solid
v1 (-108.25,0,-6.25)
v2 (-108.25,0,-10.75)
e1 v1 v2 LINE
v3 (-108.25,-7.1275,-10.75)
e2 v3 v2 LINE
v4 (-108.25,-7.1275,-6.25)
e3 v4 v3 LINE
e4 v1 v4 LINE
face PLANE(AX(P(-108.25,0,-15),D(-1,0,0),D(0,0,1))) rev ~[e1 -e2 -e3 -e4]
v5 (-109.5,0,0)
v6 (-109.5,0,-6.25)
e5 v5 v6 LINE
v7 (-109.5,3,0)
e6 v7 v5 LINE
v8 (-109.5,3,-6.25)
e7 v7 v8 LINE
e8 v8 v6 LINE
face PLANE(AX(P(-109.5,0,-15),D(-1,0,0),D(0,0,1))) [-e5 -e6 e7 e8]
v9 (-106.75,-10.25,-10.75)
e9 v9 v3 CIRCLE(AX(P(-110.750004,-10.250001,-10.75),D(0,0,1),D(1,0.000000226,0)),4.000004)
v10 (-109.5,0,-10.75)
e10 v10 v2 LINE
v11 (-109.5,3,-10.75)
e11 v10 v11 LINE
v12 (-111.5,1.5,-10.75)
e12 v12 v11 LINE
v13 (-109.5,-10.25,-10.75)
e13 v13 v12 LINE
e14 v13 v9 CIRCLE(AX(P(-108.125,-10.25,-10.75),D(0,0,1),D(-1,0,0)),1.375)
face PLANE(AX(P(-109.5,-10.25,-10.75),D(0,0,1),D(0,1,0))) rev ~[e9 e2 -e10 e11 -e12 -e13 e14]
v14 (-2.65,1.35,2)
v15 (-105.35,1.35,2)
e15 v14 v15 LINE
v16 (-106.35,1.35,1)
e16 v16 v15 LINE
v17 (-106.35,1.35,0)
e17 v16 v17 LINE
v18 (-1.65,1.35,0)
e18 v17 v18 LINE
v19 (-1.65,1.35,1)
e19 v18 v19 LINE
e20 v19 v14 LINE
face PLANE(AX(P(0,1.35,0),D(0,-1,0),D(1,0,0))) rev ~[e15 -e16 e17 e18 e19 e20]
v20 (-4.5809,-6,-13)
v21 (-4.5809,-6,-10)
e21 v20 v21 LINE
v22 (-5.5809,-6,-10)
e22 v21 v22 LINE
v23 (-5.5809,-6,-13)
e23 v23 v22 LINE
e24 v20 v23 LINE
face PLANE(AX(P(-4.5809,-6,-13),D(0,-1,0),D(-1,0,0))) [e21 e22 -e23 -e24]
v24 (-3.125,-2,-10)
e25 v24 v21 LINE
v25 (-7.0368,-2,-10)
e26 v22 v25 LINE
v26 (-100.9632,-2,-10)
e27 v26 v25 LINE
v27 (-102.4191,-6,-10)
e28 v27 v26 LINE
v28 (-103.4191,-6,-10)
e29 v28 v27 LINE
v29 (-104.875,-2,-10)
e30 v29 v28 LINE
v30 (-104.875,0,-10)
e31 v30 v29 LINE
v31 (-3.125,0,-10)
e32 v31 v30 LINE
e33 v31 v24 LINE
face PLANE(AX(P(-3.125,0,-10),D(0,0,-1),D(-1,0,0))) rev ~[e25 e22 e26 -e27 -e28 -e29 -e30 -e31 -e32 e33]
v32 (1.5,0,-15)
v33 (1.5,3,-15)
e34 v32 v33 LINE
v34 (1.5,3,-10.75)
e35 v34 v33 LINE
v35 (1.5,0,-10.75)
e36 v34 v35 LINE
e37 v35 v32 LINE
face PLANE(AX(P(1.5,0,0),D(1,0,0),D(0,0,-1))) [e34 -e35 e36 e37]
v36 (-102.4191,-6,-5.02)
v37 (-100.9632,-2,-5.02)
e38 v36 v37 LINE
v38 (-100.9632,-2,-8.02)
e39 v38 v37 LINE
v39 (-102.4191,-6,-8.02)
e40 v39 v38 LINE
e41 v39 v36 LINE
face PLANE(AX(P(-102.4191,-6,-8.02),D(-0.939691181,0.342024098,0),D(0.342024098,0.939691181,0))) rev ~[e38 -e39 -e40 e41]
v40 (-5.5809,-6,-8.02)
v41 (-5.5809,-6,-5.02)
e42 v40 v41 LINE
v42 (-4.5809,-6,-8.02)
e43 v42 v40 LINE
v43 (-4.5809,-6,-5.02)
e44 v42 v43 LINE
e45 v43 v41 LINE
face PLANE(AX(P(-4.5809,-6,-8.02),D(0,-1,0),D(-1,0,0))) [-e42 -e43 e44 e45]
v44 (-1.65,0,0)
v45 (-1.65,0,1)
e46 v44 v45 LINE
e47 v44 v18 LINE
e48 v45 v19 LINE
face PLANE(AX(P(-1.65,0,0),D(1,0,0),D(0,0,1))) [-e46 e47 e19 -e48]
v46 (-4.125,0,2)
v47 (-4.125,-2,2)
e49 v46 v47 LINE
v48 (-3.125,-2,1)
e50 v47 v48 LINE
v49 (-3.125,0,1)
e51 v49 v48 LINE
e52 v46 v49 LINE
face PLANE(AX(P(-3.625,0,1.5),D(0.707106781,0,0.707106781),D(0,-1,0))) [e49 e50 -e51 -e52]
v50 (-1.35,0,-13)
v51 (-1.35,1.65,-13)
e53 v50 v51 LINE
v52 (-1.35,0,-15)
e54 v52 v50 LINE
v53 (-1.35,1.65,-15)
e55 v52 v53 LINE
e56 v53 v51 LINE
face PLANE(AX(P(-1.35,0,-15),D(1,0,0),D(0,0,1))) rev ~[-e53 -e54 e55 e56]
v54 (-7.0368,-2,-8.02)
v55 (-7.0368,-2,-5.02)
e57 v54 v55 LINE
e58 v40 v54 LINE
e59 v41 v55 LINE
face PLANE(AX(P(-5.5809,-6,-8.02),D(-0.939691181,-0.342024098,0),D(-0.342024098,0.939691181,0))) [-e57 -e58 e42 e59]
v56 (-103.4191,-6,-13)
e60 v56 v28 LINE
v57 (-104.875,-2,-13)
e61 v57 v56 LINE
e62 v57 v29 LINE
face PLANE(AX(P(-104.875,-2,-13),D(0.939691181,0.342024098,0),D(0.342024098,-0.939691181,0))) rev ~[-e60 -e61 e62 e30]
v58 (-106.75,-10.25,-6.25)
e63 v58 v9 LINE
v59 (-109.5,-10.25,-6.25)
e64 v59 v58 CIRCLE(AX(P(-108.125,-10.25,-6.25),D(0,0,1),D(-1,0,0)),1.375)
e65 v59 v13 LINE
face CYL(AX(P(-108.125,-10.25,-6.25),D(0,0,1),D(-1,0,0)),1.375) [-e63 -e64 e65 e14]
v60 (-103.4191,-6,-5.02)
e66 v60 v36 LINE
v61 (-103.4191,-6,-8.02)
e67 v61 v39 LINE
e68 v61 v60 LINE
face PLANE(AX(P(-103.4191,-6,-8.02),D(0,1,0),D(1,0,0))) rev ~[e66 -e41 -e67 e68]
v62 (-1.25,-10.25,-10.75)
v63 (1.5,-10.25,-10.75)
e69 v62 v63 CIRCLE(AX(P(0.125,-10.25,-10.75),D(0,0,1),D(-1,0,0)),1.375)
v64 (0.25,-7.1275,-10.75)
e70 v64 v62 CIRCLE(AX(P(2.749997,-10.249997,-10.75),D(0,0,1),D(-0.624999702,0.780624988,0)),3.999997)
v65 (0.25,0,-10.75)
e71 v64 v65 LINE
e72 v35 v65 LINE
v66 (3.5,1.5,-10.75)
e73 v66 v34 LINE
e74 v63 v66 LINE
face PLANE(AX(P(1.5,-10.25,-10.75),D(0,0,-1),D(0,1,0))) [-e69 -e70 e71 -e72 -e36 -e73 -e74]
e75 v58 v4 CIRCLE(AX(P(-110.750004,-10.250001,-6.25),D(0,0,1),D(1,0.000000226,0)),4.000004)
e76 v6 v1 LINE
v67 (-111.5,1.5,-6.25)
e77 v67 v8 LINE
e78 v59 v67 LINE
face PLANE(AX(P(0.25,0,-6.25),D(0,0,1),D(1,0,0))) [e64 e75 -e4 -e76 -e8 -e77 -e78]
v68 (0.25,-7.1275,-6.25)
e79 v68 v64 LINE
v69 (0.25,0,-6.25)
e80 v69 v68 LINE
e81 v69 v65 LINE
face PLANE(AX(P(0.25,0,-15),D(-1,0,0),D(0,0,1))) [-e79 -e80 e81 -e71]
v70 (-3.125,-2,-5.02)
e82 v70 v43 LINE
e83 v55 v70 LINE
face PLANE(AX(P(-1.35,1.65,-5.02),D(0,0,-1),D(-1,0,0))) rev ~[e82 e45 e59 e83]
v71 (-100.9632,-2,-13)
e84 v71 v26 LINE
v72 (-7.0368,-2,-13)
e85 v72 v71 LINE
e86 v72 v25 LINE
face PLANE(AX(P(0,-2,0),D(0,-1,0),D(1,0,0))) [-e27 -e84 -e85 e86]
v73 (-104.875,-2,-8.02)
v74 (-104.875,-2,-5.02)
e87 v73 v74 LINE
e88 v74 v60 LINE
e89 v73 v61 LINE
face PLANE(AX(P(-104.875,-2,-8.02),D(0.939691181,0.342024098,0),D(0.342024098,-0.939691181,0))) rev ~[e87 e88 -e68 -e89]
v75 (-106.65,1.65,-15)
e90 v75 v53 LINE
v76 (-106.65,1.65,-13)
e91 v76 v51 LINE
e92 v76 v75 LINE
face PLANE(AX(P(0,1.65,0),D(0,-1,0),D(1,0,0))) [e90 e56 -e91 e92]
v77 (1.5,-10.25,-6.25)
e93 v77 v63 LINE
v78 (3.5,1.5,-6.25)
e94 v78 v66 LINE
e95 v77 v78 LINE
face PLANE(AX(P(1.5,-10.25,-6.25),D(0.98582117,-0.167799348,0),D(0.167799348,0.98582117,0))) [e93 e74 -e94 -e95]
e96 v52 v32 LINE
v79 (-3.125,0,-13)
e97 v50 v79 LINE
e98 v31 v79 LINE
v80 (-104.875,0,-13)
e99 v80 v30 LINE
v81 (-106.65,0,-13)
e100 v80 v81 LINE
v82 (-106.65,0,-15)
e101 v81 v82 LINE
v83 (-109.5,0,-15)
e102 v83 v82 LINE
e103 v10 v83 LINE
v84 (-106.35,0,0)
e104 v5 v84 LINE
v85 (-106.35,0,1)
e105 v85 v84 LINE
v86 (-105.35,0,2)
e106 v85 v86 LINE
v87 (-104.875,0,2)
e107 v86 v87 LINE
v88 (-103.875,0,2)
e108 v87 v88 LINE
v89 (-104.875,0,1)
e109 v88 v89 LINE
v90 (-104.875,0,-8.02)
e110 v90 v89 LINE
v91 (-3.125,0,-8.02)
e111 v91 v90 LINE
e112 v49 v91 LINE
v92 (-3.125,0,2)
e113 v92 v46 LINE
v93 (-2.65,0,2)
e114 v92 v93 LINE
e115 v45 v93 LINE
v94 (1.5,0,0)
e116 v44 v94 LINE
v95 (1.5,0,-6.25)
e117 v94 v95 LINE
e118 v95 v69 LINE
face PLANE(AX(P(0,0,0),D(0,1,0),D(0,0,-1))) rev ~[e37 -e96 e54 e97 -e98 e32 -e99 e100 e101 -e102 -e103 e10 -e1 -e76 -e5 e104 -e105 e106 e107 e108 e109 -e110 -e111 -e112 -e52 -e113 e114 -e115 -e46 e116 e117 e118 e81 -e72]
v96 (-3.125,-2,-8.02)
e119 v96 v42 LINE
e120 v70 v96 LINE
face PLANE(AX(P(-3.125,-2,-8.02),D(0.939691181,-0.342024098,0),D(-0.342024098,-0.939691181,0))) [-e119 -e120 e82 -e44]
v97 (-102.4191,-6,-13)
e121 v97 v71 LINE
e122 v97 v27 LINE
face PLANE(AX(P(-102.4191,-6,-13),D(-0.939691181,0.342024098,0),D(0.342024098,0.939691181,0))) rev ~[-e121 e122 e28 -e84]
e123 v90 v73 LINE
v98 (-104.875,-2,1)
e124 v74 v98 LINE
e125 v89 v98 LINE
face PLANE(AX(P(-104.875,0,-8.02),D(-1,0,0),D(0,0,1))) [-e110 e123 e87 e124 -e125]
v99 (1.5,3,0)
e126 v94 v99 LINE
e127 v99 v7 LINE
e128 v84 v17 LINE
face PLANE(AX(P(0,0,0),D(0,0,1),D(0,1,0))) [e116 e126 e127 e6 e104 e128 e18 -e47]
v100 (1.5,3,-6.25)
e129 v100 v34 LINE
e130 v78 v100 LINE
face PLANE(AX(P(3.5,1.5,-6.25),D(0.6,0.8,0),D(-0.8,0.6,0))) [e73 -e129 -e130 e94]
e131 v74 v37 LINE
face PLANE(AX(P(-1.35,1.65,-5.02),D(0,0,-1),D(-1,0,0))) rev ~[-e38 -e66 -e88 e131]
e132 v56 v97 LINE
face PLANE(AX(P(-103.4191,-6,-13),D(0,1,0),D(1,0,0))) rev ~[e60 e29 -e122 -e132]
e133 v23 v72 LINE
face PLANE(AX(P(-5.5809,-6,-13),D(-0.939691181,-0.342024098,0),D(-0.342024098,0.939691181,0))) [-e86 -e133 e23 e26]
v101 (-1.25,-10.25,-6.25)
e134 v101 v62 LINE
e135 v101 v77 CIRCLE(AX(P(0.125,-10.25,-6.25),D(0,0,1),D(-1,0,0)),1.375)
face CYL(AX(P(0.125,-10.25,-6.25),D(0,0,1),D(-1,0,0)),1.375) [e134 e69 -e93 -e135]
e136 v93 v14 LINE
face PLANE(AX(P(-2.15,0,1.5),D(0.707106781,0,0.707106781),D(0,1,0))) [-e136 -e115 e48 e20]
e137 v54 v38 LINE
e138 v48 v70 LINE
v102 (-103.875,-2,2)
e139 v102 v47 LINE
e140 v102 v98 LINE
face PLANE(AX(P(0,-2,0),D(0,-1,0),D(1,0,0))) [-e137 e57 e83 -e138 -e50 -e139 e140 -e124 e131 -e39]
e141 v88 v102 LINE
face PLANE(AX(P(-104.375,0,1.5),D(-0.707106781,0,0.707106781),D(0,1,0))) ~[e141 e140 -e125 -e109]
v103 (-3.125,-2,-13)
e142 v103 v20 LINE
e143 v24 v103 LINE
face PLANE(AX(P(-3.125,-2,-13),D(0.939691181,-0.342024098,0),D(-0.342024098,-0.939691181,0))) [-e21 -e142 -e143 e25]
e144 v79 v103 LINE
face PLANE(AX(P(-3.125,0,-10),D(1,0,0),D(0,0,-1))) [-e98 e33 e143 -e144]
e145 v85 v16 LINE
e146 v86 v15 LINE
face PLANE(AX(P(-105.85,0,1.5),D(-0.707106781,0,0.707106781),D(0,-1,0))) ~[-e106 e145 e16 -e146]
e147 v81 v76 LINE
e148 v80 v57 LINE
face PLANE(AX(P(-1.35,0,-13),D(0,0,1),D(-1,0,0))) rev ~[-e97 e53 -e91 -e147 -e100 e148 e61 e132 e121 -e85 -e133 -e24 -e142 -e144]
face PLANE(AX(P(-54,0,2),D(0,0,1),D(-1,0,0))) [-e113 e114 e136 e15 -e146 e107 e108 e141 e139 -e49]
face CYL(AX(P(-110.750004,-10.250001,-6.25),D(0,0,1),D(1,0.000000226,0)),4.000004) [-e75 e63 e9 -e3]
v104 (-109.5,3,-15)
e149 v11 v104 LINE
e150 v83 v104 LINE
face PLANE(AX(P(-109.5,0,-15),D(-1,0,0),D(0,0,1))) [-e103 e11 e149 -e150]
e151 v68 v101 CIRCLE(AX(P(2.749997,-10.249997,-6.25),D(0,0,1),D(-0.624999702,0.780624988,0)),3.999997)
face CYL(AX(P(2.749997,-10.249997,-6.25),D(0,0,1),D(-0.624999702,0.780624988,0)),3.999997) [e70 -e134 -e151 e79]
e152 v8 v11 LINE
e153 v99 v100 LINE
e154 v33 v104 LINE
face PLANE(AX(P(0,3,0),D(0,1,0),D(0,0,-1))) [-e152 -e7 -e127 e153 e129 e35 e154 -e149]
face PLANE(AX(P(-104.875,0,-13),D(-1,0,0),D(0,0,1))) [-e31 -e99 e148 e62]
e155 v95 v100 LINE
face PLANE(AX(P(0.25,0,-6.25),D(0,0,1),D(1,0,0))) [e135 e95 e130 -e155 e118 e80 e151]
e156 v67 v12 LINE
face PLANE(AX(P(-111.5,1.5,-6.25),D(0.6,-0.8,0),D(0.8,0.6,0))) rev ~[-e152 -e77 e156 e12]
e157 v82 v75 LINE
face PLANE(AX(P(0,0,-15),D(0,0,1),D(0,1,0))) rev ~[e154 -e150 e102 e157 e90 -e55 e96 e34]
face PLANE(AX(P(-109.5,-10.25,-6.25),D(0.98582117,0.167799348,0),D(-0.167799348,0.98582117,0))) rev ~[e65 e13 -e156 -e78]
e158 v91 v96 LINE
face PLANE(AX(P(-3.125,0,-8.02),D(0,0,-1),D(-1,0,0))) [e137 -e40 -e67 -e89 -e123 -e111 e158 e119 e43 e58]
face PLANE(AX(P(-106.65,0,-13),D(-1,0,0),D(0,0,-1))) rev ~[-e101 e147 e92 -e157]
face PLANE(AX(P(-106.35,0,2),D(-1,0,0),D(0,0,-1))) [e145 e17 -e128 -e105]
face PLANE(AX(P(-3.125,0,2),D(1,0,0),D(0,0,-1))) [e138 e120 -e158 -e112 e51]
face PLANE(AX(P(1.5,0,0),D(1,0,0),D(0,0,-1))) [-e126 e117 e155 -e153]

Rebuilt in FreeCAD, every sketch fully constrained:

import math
import FreeCAD as App
import Part
import Sketcher
Q = App.Units.Quantity


def edges_at(feature, points):
    """Names of the edges that pass closest to the given points."""
    edges = feature.Shape.Edges
    near = lambda p: min(range(len(edges)), key=lambda i: edges[i].distToShape(Part.Vertex(*p))[0])
    return sorted({f"Edge{near(p) + 1}" for p in points})

doc = App.newDocument("Part")
params = doc.addObject("Spreadsheet::Sheet", "Params")
for row, (alias, value) in enumerate([
    ("sketch1_width", "108 mm"),
    ("sketch1_height", "15 mm"),
    ("pad1_length", "3 mm"),
    ("sketch2_height", "2 mm"),
    ("sketch2_width", "104.7 mm"),
    ("pad2_length", "1.35 mm"),
    ("sketch3_height", "2 mm"),
    ("sketch3_width", "105.3 mm"),
    ("pocket1_length", "1.65 mm"),
    ("sketch4_width", "101.75 mm"),
    ("sketch4_height", "3 mm"),
    ("pad3_length", "2 mm"),
    ("sketch5_width", "101.75 mm"),
    ("sketch5_height", "10.02 mm"),
    ("pad4_length", "2 mm"),
    ("sketch6_width", "3 mm"),
    ("sketch6_height", "15 mm"),
    ("pad5_length", "1.5 mm"),
    ("sketch7_width", "3 mm"),
    ("sketch7_height", "15 mm"),
    ("pad6_length", "1.5 mm"),
    ("sketch8_height", "4.5 mm"),
    ("sketch8_width", "10.25 mm"),
    ("pad7_length", "1.25 mm"),
    ("sketch9_height", "4.5 mm"),
    ("sketch9_width", "10.25 mm"),
    ("pad8_length", "1.25 mm"),
    ("sketch10_radius", "4 mm"),
    ("pad9_length", "4.5 mm"),
    ("sketch11_length", "2.5 mm"),
    ("sketch11_height", "13.25 mm"),
    ("pad10_length", "4.5 mm"),
    ("sketch12_width", "1 mm"),
    ("pad11_length", "3 mm"),
    ("sketch13_width", "1 mm"),
    ("pad12_length", "3 mm"),
    ("chamfer_size", "1 mm"),
], start=1):
    params.set(f"A{row}", alias)
    params.set(f"B{row}", "=" + value)
    params.setAlias(f"B{row}", alias)

body = doc.addObject("PartDesign::Body", "Body")

# Sketch on XZ plane
sketch1 = body.newObject("Sketcher::SketchObject", "Sketch")
sketch1.AttachmentSupport = (doc.getObject("XZ_Plane"), [""])
sketch1.MapMode = "FlatFace"
sketch1.addGeometry([
    Part.LineSegment(App.Vector(-108, 0, 0), App.Vector(0, 0, 0)),
    Part.LineSegment(App.Vector(0, 0, 0), App.Vector(0, -15, 0)),
    Part.LineSegment(App.Vector(0, -15, 0), App.Vector(-108, -15, 0)),
    Part.LineSegment(App.Vector(-108, -15, 0), App.Vector(-108, 0, 0)),
], False)
sketch1.addConstraint([
    Sketcher.Constraint("Coincident", 0, 2, 1, 1),
    Sketcher.Constraint("Coincident", 1, 2, 2, 1),
    Sketcher.Constraint("Coincident", 2, 2, 3, 1),
    Sketcher.Constraint("Coincident", 3, 2, 0, 1),
    Sketcher.Constraint("Horizontal", 0),
    Sketcher.Constraint("Vertical", 1),
    Sketcher.Constraint("Horizontal", 2),
    Sketcher.Constraint("Vertical", 3),
    Sketcher.Constraint("Coincident", 0, 2, -1, 1),
    Sketcher.Constraint("DistanceX", 0, 1, 0, 2, Q("108 mm")),
    Sketcher.Constraint("DistanceY", 1, 2, 1, 1, Q("15 mm")),
])
sketch1.setExpression("Constraints[9]", "Params.sketch1_width")
sketch1.setExpression("Constraints[10]", "Params.sketch1_height")
pad1 = body.newObject("PartDesign::Pad", "Pad")
pad1.Profile = sketch1
pad1.setExpression("Length", "Params.pad1_length")
pad1.Reversed = True

# Sketch on XZ plane
sketch2 = body.newObject("Sketcher::SketchObject", "Sketch001")
sketch2.AttachmentSupport = (doc.getObject("XZ_Plane"), [""])
sketch2.MapMode = "FlatFace"
sketch2.addGeometry([
    Part.LineSegment(App.Vector(-106.35, 2, 0), App.Vector(-106.35, 0, 0)),
    Part.LineSegment(App.Vector(-106.35, 0, 0), App.Vector(-1.65, 0, 0)),
    Part.LineSegment(App.Vector(-1.65, 0, 0), App.Vector(-1.65, 2, 0)),
    Part.LineSegment(App.Vector(-1.65, 2, 0), App.Vector(-106.35, 2, 0)),
], False)
sketch2.addConstraint([
    Sketcher.Constraint("Coincident", 0, 2, 1, 1),
    Sketcher.Constraint("Coincident", 1, 2, 2, 1),
    Sketcher.Constraint("Coincident", 2, 2, 3, 1),
    Sketcher.Constraint("Coincident", 3, 2, 0, 1),
    Sketcher.Constraint("Vertical", 0),
    Sketcher.Constraint("Horizontal", 1),
    Sketcher.Constraint("Vertical", 2),
    Sketcher.Constraint("Horizontal", 3),
    Sketcher.Constraint("PointOnObject", 0, 2, -1),
    Sketcher.Constraint("DistanceY", 0, 2, 0, 1, Q("2 mm")),
    Sketcher.Constraint("DistanceX", 1, 2, -1, 1, Q("1.65 mm")),
    Sketcher.Constraint("DistanceX", 1, 1, 1, 2, Q("104.7 mm")),
])
sketch2.setExpression("Constraints[9]", "Params.sketch2_height")
sketch2.setExpression("Constraints[11]", "Params.sketch2_width")
pad2 = body.newObject("PartDesign::Pad", "Pad001")
pad2.Profile = sketch2
pad2.setExpression("Length", "Params.pad2_length")
pad2.Reversed = True

# Sketch on XZ plane
sketch3 = body.newObject("Sketcher::SketchObject", "Sketch002")
sketch3.AttachmentSupport = (doc.getObject("XZ_Plane"), [""])
sketch3.MapMode = "FlatFace"
sketch3.addGeometry([
    Part.LineSegment(App.Vector(-1.35, -15, 0), App.Vector(-1.35, -13, 0)),
    Part.LineSegment(App.Vector(-1.35, -13, 0), App.Vector(-106.65, -13, 0)),
    Part.LineSegment(App.Vector(-106.65, -13, 0), App.Vector(-106.65, -15, 0)),
    Part.LineSegment(App.Vector(-106.65, -15, 0), App.Vector(-1.35, -15, 0)),
], False)
sketch3.addConstraint([
    Sketcher.Constraint("Coincident", 0, 2, 1, 1),
    Sketcher.Constraint("Coincident", 1, 2, 2, 1),
    Sketcher.Constraint("Coincident", 2, 2, 3, 1),
    Sketcher.Constraint("Coincident", 3, 2, 0, 1),
    Sketcher.Constraint("Vertical", 0),
    Sketcher.Constraint("Horizontal", 1),
    Sketcher.Constraint("Vertical", 2),
    Sketcher.Constraint("Horizontal", 3),
    Sketcher.Constraint("DistanceY", 0, 1, 0, 2, Q("2 mm")),
    Sketcher.Constraint("DistanceX", 0, 2, -1, 1, Q("1.35 mm")),
    Sketcher.Constraint("DistanceX", 1, 2, 1, 1, Q("105.3 mm")),
    Sketcher.Constraint("DistanceY", 0, 2, -1, 1, Q("13 mm")),
])
sketch3.setExpression("Constraints[8]", "Params.sketch3_height")
sketch3.setExpression("Constraints[10]", "Params.sketch3_width")
pocket1 = body.newObject("PartDesign::Pocket", "Pocket")
pocket1.Profile = sketch3
pocket1.setExpression("Length", "Params.pocket1_length")

# Sketch on XZ plane
sketch4 = body.newObject("Sketcher::SketchObject", "Sketch003")
sketch4.AttachmentSupport = (doc.getObject("XZ_Plane"), [""])
sketch4.MapMode = "FlatFace"
sketch4.addGeometry([
    Part.LineSegment(App.Vector(-3.125, -13, 0), App.Vector(-3.125, -10, 0)),
    Part.LineSegment(App.Vector(-3.125, -10, 0), App.Vector(-104.875, -10, 0)),
    Part.LineSegment(App.Vector(-104.875, -10, 0), App.Vector(-104.875, -13, 0)),
    Part.LineSegment(App.Vector(-104.875, -13, 0), App.Vector(-3.125, -13, 0)),
], False)
sketch4.addConstraint([
    Sketcher.Constraint("Coincident", 0, 2, 1, 1),
    Sketcher.Constraint("Coincident", 1, 2, 2, 1),
    Sketcher.Constraint("Coincident", 2, 2, 3, 1),
    Sketcher.Constraint("Coincident", 3, 2, 0, 1),
    Sketcher.Constraint("Vertical", 0),
    Sketcher.Constraint("Horizontal", 1),
    Sketcher.Constraint("Vertical", 2),
    Sketcher.Constraint("Horizontal", 3),
    Sketcher.Constraint("DistanceX", 1, 2, 1, 1, Q("101.75 mm")),
    Sketcher.Constraint("DistanceY", 0, 1, 0, 2, Q("3 mm")),
    Sketcher.Constraint("DistanceY", 0, 2, -1, 1, Q("10 mm")),
    Sketcher.Constraint("DistanceX", 0, 2, -1, 1, Q("3.125 mm")),
])
sketch4.setExpression("Constraints[8]", "Params.sketch4_width")
sketch4.setExpression("Constraints[9]", "Params.sketch4_height")
pad3 = body.newObject("PartDesign::Pad", "Pad002")
pad3.Profile = sketch4
pad3.setExpression("Length", "Params.pad3_length")

# Sketch on XZ plane
sketch5 = body.newObject("Sketcher::SketchObject", "Sketch004")
sketch5.AttachmentSupport = (doc.getObject("XZ_Plane"), [""])
sketch5.MapMode = "FlatFace"
sketch5.addGeometry([
    Part.LineSegment(App.Vector(-104.875, -8.02, 0), App.Vector(-3.125, -8.02, 0)),
    Part.LineSegment(App.Vector(-3.125, -8.02, 0), App.Vector(-3.125, 2, 0)),
    Part.LineSegment(App.Vector(-3.125, 2, 0), App.Vector(-104.875, 2, 0)),
    Part.LineSegment(App.Vector(-104.875, 2, 0), App.Vector(-104.875, -8.02, 0)),
], False)
sketch5.addConstraint([
    Sketcher.Constraint("Coincident", 0, 2, 1, 1),
    Sketcher.Constraint("Coincident", 1, 2, 2, 1),
    Sketcher.Constraint("Coincident", 2, 2, 3, 1),
    Sketcher.Constraint("Coincident", 3, 2, 0, 1),
    Sketcher.Constraint("Horizontal", 0),
    Sketcher.Constraint("Vertical", 1),
    Sketcher.Constraint("Horizontal", 2),
    Sketcher.Constraint("Vertical", 3),
    Sketcher.Constraint("DistanceY", -1, 1, 1, 2, Q("2 mm")),
    Sketcher.Constraint("DistanceX", 0, 1, 0, 2, Q("101.75 mm")),
    Sketcher.Constraint("DistanceY", 1, 1, 1, 2, Q("10.02 mm")),
    Sketcher.Constraint("DistanceX", 0, 2, -1, 1, Q("3.125 mm")),
])
sketch5.setExpression("Constraints[9]", "Params.sketch5_width")
sketch5.setExpression("Constraints[10]", "Params.sketch5_height")
pad4 = body.newObject("PartDesign::Pad", "Pad003")
pad4.Profile = sketch5
pad4.setExpression("Length", "Params.pad4_length")

# Sketch on YZ plane
sketch6 = body.newObject("Sketcher::SketchObject", "Sketch005")
sketch6.AttachmentSupport = (doc.getObject("YZ_Plane"), [""])
sketch6.MapMode = "FlatFace"
sketch6.AttachmentOffset = App.Placement(App.Vector(0, 0, -108), App.Rotation())
sketch6.addGeometry([
    Part.LineSegment(App.Vector(0, 0, 0), App.Vector(3, 0, 0)),
    Part.LineSegment(App.Vector(3, 0, 0), App.Vector(3, -15, 0)),
    Part.LineSegment(App.Vector(3, -15, 0), App.Vector(0, -15, 0)),
    Part.LineSegment(App.Vector(0, -15, 0), App.Vector(0, 0, 0)),
], False)
sketch6.addConstraint([
    Sketcher.Constraint("Coincident", 0, 2, 1, 1),
    Sketcher.Constraint("Coincident", 1, 2, 2, 1),
    Sketcher.Constraint("Coincident", 2, 2, 3, 1),
    Sketcher.Constraint("Coincident", 3, 2, 0, 1),
    Sketcher.Constraint("Horizontal", 0),
    Sketcher.Constraint("Vertical", 1),
    Sketcher.Constraint("Horizontal", 2),
    Sketcher.Constraint("Vertical", 3),
    Sketcher.Constraint("Coincident", 3, 2, -1, 1),
    Sketcher.Constraint("DistanceX", 0, 1, 0, 2, Q("3 mm")),
    Sketcher.Constraint("DistanceY", 1, 2, 1, 1, Q("15 mm")),
])
sketch6.setExpression("Constraints[9]", "Params.sketch6_width")
sketch6.setExpression("Constraints[10]", "Params.sketch6_height")
pad5 = body.newObject("PartDesign::Pad", "Pad004")
pad5.Profile = sketch6
pad5.setExpression("Length", "Params.pad5_length")
pad5.Reversed = True

# Sketch on YZ plane
sketch7 = body.newObject("Sketcher::SketchObject", "Sketch006")
sketch7.AttachmentSupport = (doc.getObject("YZ_Plane"), [""])
sketch7.MapMode = "FlatFace"
sketch7.addGeometry([
    Part.LineSegment(App.Vector(3, 0, 0), App.Vector(0, 0, 0)),
    Part.LineSegment(App.Vector(0, 0, 0), App.Vector(0, -15, 0)),
    Part.LineSegment(App.Vector(0, -15, 0), App.Vector(3, -15, 0)),
    Part.LineSegment(App.Vector(3, -15, 0), App.Vector(3, 0, 0)),
], False)
sketch7.addConstraint([
    Sketcher.Constraint("Coincident", 0, 2, 1, 1),
    Sketcher.Constraint("Coincident", 1, 2, 2, 1),
    Sketcher.Constraint("Coincident", 2, 2, 3, 1),
    Sketcher.Constraint("Coincident", 3, 2, 0, 1),
    Sketcher.Constraint("Horizontal", 0),
    Sketcher.Constraint("Vertical", 1),
    Sketcher.Constraint("Horizontal", 2),
    Sketcher.Constraint("Vertical", 3),
    Sketcher.Constraint("Coincident", 0, 2, -1, 1),
    Sketcher.Constraint("DistanceX", 0, 2, 0, 1, Q("3 mm")),
    Sketcher.Constraint("DistanceY", 1, 2, 1, 1, Q("15 mm")),
])
sketch7.setExpression("Constraints[9]", "Params.sketch7_width")
sketch7.setExpression("Constraints[10]", "Params.sketch7_height")
pad6 = body.newObject("PartDesign::Pad", "Pad005")
pad6.Profile = sketch7
pad6.setExpression("Length", "Params.pad6_length")

# Sketch on YZ plane
sketch8 = body.newObject("Sketcher::SketchObject", "Sketch007")
sketch8.AttachmentSupport = (doc.getObject("YZ_Plane"), [""])
sketch8.MapMode = "FlatFace"
sketch8.AttachmentOffset = App.Placement(App.Vector(0, 0, -109.5), App.Rotation())
sketch8.addGeometry([
    Part.LineSegment(App.Vector(-10.25, -6.25, 0), App.Vector(0, -6.25, 0)),
    Part.LineSegment(App.Vector(0, -6.25, 0), App.Vector(0, -10.75, 0)),
    Part.LineSegment(App.Vector(0, -10.75, 0), App.Vector(-10.25, -10.75, 0)),
    Part.LineSegment(App.Vector(-10.25, -10.75, 0), App.Vector(-10.25, -6.25, 0)),
], False)
sketch8.addConstraint([
    Sketcher.Constraint("Coincident", 0, 2, 1, 1),
    Sketcher.Constraint("Coincident", 1, 2, 2, 1),
    Sketcher.Constraint("Coincident", 2, 2, 3, 1),
    Sketcher.Constraint("Coincident", 3, 2, 0, 1),
    Sketcher.Constraint("Horizontal", 0),
    Sketcher.Constraint("Vertical", 1),
    Sketcher.Constraint("Horizontal", 2),
    Sketcher.Constraint("Vertical", 3),
    Sketcher.Constraint("PointOnObject", 0, 2, -2),
    Sketcher.Constraint("DistanceY", 1, 2, 1, 1, Q("4.5 mm")),
    Sketcher.Constraint("DistanceX", 0, 1, 0, 2, Q("10.25 mm")),
    Sketcher.Constraint("DistanceY", 0, 2, -1, 1, Q("6.25 mm")),
])
sketch8.setExpression("Constraints[9]", "Params.sketch8_height")
sketch8.setExpression("Constraints[10]", "Params.sketch8_width")
pad7 = body.newObject("PartDesign::Pad", "Pad006")
pad7.Profile = sketch8
pad7.setExpression("Length", "Params.pad7_length")

# Sketch on YZ plane
sketch9 = body.newObject("Sketcher::SketchObject", "Sketch008")
sketch9.AttachmentSupport = (doc.getObject("YZ_Plane"), [""])
sketch9.MapMode = "FlatFace"
sketch9.AttachmentOffset = App.Placement(App.Vector(0, 0, 1.5), App.Rotation())
sketch9.addGeometry([
    Part.LineSegment(App.Vector(-10.25, -6.25, 0), App.Vector(0, -6.25, 0)),
    Part.LineSegment(App.Vector(0, -6.25, 0), App.Vector(0, -10.75, 0)),
    Part.LineSegment(App.Vector(0, -10.75, 0), App.Vector(-10.25, -10.75, 0)),
    Part.LineSegment(App.Vector(-10.25, -10.75, 0), App.Vector(-10.25, -6.25, 0)),
], False)
sketch9.addConstraint([
    Sketcher.Constraint("Coincident", 0, 2, 1, 1),
    Sketcher.Constraint("Coincident", 1, 2, 2, 1),
    Sketcher.Constraint("Coincident", 2, 2, 3, 1),
    Sketcher.Constraint("Coincident", 3, 2, 0, 1),
    Sketcher.Constraint("Horizontal", 0),
    Sketcher.Constraint("Vertical", 1),
    Sketcher.Constraint("Horizontal", 2),
    Sketcher.Constraint("Vertical", 3),
    Sketcher.Constraint("PointOnObject", 0, 2, -2),
    Sketcher.Constraint("DistanceY", 1, 2, 1, 1, Q("4.5 mm")),
    Sketcher.Constraint("DistanceX", 0, 1, 0, 2, Q("10.25 mm")),
    Sketcher.Constraint("DistanceY", 0, 2, -1, 1, Q("6.25 mm")),
])
sketch9.setExpression("Constraints[9]", "Params.sketch9_height")
sketch9.setExpression("Constraints[10]", "Params.sketch9_width")
pad8 = body.newObject("PartDesign::Pad", "Pad007")
pad8.Profile = sketch9
pad8.setExpression("Length", "Params.pad8_length")
pad8.Reversed = True

# Sketch on XY plane
sketch10 = body.newObject("Sketcher::SketchObject", "Sketch009")
sketch10.AttachmentSupport = (doc.getObject("XY_Plane"), [""])
sketch10.MapMode = "FlatFace"
sketch10.AttachmentOffset = App.Placement(App.Vector(0, 0, -6.25), App.Rotation())
sketch10.addGeometry([
    Part.LineSegment(App.Vector(-109.5, -7.1275, 0), App.Vector(-109.5, -10.25, 0)),  # 0
    Part.ArcOfCircle(Part.Circle(App.Vector(-108.125, -10.25, 0), App.Vector(0, 0, 1), 1.375), math.radians(180), math.radians(360)),  # 1
    Part.ArcOfCircle(Part.Circle(App.Vector(-110.75, -10.25, 0), App.Vector(0, 0, 1), 4), math.radians(0), math.radians(51.317822)),  # 2
    Part.LineSegment(App.Vector(-108.25, -7.1275, 0), App.Vector(-109.5, -7.1275, 0)),  # 3
    Part.ArcOfCircle(Part.Circle(App.Vector(0.125, -10.25, 0), App.Vector(0, 0, 1), 1.375), math.radians(180), math.radians(360)),  # 4
    Part.LineSegment(App.Vector(1.5, -10.25, 0), App.Vector(1.5, -7.1275, 0)),  # 5
    Part.LineSegment(App.Vector(1.5, -7.1275, 0), App.Vector(0.25, -7.1275, 0)),  # 6
    Part.ArcOfCircle(Part.Circle(App.Vector(2.75, -10.25, 0), App.Vector(0, 0, 1), 4.000001), math.radians(128.682178), math.radians(180)),  # 7
], False)
sketch10.addConstraint([
    Sketcher.Constraint("Tangent", 0, 2, 1, 1),
    Sketcher.Constraint("Tangent", 1, 2, 2, 1),
    Sketcher.Constraint("Coincident", 2, 2, 3, 1),
    Sketcher.Constraint("Coincident", 3, 2, 0, 1),
    Sketcher.Constraint("Tangent", 4, 2, 5, 1),
    Sketcher.Constraint("Coincident", 5, 2, 6, 1),
    Sketcher.Constraint("Coincident", 6, 2, 7, 1),
    Sketcher.Constraint("Tangent", 7, 2, 4, 1),
    Sketcher.Constraint("Vertical", 0),
    Sketcher.Constraint("Horizontal", 3),
    Sketcher.Constraint("Vertical", 5),
    Sketcher.Constraint("Horizontal", 6),
    Sketcher.Constraint("Equal", 1, 4),
    Sketcher.Constraint("Equal", 2, 7),
    Sketcher.Constraint("Horizontal", 1, 3, 2, 3),
    Sketcher.Constraint("Horizontal", 2, 3, 4, 3),
    Sketcher.Constraint("Horizontal", 4, 3, 7, 3),
    Sketcher.Constraint("Horizontal", 3, 2, 5, 2),
    Sketcher.Constraint("Radius", 2, Q("4 mm")),
    Sketcher.Constraint("DistanceX", -1, 1, 4, 2, Q("1.5 mm")),
    Sketcher.Constraint("DistanceX", 2, 2, 1, 2, Q("1.5 mm")),
    Sketcher.Constraint("Radius", 1, Q("1.375 mm")),
    Sketcher.Constraint("DistanceX", 1, 2, 6, 2, Q("107 mm")),
    Sketcher.Constraint("DistanceY", 1, 3, -1, 1, Q("10.25 mm")),
])
sketch10.setExpression("Constraints[18]", "Params.sketch10_radius")
pad9 = body.newObject("PartDesign::Pad", "Pad008")
pad9.Profile = sketch10
pad9.setExpression("Length", "Params.pad9_length")
pad9.Reversed = True

# Sketch on XY plane
sketch11 = body.newObject("Sketcher::SketchObject", "Sketch010")
sketch11.AttachmentSupport = (doc.getObject("XY_Plane"), [""])
sketch11.MapMode = "FlatFace"
sketch11.AttachmentOffset = App.Placement(App.Vector(0, 0, -6.25), App.Rotation())
sketch11.addGeometry([
    Part.LineSegment(App.Vector(-109.5, -10.25, 0), App.Vector(-109.5, 3, 0)),  # 0
    Part.LineSegment(App.Vector(-109.5, 3, 0), App.Vector(-111.5, 1.5, 0)),  # 1
    Part.LineSegment(App.Vector(-111.5, 1.5, 0), App.Vector(-109.5, -10.25, 0)),  # 2
    Part.LineSegment(App.Vector(3.5, 1.5, 0), App.Vector(1.5, 3, 0)),  # 3
    Part.LineSegment(App.Vector(1.5, 3, 0), App.Vector(1.5, -10.25, 0)),  # 4
    Part.LineSegment(App.Vector(1.5, -10.25, 0), App.Vector(3.5, 1.5, 0)),  # 5
], False)
sketch11.addConstraint([
    Sketcher.Constraint("Coincident", 0, 2, 1, 1),
    Sketcher.Constraint("Coincident", 1, 2, 2, 1),
    Sketcher.Constraint("Coincident", 2, 2, 0, 1),
    Sketcher.Constraint("Coincident", 3, 2, 4, 1),
    Sketcher.Constraint("Coincident", 4, 2, 5, 1),
    Sketcher.Constraint("Coincident", 5, 2, 3, 1),
    Sketcher.Constraint("Vertical", 0),
    Sketcher.Constraint("Vertical", 4),
    Sketcher.Constraint("Horizontal", 0, 2, 3, 2),
    Sketcher.Constraint("Horizontal", 2, 2, 4, 2),
    Sketcher.Constraint("Horizontal", 1, 2, 5, 2),
    Sketcher.Constraint("Equal", 1, 3),
    Sketcher.Constraint("DistanceX", 1, 2, 0, 2, Q("2 mm")),
    Sketcher.Constraint("DistanceY", -1, 1, 0, 2, Q("3 mm")),
    Sketcher.Constraint("DistanceX", 0, 2, 3, 2, Q("111 mm")),
    Sketcher.Constraint("Distance", 1, Q("2.5 mm")),
    Sketcher.Constraint("DistanceY", 0, 1, 0, 2, Q("13.25 mm")),
    Sketcher.Constraint("DistanceX", 0, 2, -1, 1, Q("109.5 mm")),
])
sketch11.setExpression("Constraints[15]", "Params.sketch11_length")
sketch11.setExpression("Constraints[16]", "Params.sketch11_height")
pad10 = body.newObject("PartDesign::Pad", "Pad009")
pad10.Profile = sketch11
pad10.setExpression("Length", "Params.pad10_length")
pad10.Reversed = True

# Sketch on XY plane
sketch12 = body.newObject("Sketcher::SketchObject", "Sketch011")
sketch12.AttachmentSupport = (doc.getObject("XY_Plane"), [""])
sketch12.MapMode = "FlatFace"
sketch12.AttachmentOffset = App.Placement(App.Vector(0, 0, -13), App.Rotation())
sketch12.addGeometry([
    Part.LineSegment(App.Vector(-7.0368, -2, 0), App.Vector(-3.125, -2, 0)),  # 0
    Part.LineSegment(App.Vector(-3.125, -2, 0), App.Vector(-4.5809, -6, 0)),  # 1
    Part.LineSegment(App.Vector(-4.5809, -6, 0), App.Vector(-5.5809, -6, 0)),  # 2
    Part.LineSegment(App.Vector(-5.5809, -6, 0), App.Vector(-7.0368, -2, 0)),  # 3
    Part.LineSegment(App.Vector(-104.875, -2, 0), App.Vector(-100.9632, -2, 0)),  # 4
    Part.LineSegment(App.Vector(-100.9632, -2, 0), App.Vector(-102.4191, -6, 0)),  # 5
    Part.LineSegment(App.Vector(-102.4191, -6, 0), App.Vector(-103.4191, -6, 0)),  # 6
    Part.LineSegment(App.Vector(-103.4191, -6, 0), App.Vector(-104.875, -2, 0)),  # 7
], False)
sketch12.addConstraint([
    Sketcher.Constraint("Coincident", 0, 2, 1, 1),
    Sketcher.Constraint("Coincident", 1, 2, 2, 1),
    Sketcher.Constraint("Coincident", 2, 2, 3, 1),
    Sketcher.Constraint("Coincident", 3, 2, 0, 1),
    Sketcher.Constraint("Coincident", 4, 2, 5, 1),
    Sketcher.Constraint("Coincident", 5, 2, 6, 1),
    Sketcher.Constraint("Coincident", 6, 2, 7, 1),
    Sketcher.Constraint("Coincident", 7, 2, 4, 1),
    Sketcher.Constraint("Horizontal", 0),
    Sketcher.Constraint("Horizontal", 2),
    Sketcher.Constraint("Horizontal", 4),
    Sketcher.Constraint("Horizontal", 6),
    Sketcher.Constraint("Parallel", 1, 5),
    Sketcher.Constraint("Parallel", 3, 7),
    Sketcher.Constraint("Horizontal", 3, 2, 4, 2),
    Sketcher.Constraint("Horizontal", 2, 2, 5, 2),
    Sketcher.Constraint("Equal", 0, 4),
    Sketcher.Constraint("Equal", 1, 3),
    Sketcher.Constraint("DistanceX", 2, 2, 2, 1, Q("1 mm")),
    Sketcher.Constraint("DistanceY", 1, 2, 0, 2, Q("4 mm")),
    Sketcher.Constraint("Angle", 1, Q("-110.0002 deg")),
    Sketcher.Constraint("DistanceY", 0, 2, -1, 1, Q("2 mm")),
    Sketcher.Constraint("DistanceX", 0, 2, -1, 1, Q("3.125 mm")),
    Sketcher.Constraint("DistanceX", 5, 2, -1, 1, Q("102.419 mm")),
])
sketch12.setExpression("Constraints[18]", "Params.sketch12_width")
pad11 = body.newObject("PartDesign::Pad", "Pad010")
pad11.Profile = sketch12
pad11.setExpression("Length", "Params.pad11_length")

# Sketch on XY plane
sketch13 = body.newObject("Sketcher::SketchObject", "Sketch012")
sketch13.AttachmentSupport = (doc.getObject("XY_Plane"), [""])
sketch13.MapMode = "FlatFace"
sketch13.AttachmentOffset = App.Placement(App.Vector(0, 0, -8.02), App.Rotation())
sketch13.addGeometry([
    Part.LineSegment(App.Vector(-7.0368, -2, 0), App.Vector(-3.125, -2, 0)),  # 0
    Part.LineSegment(App.Vector(-3.125, -2, 0), App.Vector(-4.5809, -6, 0)),  # 1
    Part.LineSegment(App.Vector(-4.5809, -6, 0), App.Vector(-5.5809, -6, 0)),  # 2
    Part.LineSegment(App.Vector(-5.5809, -6, 0), App.Vector(-7.0368, -2, 0)),  # 3
    Part.LineSegment(App.Vector(-104.875, -2, 0), App.Vector(-100.9632, -2, 0)),  # 4
    Part.LineSegment(App.Vector(-100.9632, -2, 0), App.Vector(-102.4191, -6, 0)),  # 5
    Part.LineSegment(App.Vector(-102.4191, -6, 0), App.Vector(-103.4191, -6, 0)),  # 6
    Part.LineSegment(App.Vector(-103.4191, -6, 0), App.Vector(-104.875, -2, 0)),  # 7
], False)
sketch13.addConstraint([
    Sketcher.Constraint("Coincident", 0, 2, 1, 1),
    Sketcher.Constraint("Coincident", 1, 2, 2, 1),
    Sketcher.Constraint("Coincident", 2, 2, 3, 1),
    Sketcher.Constraint("Coincident", 3, 2, 0, 1),
    Sketcher.Constraint("Coincident", 4, 2, 5, 1),
    Sketcher.Constraint("Coincident", 5, 2, 6, 1),
    Sketcher.Constraint("Coincident", 6, 2, 7, 1),
    Sketcher.Constraint("Coincident", 7, 2, 4, 1),
    Sketcher.Constraint("Horizontal", 0),
    Sketcher.Constraint("Horizontal", 2),
    Sketcher.Constraint("Horizontal", 4),
    Sketcher.Constraint("Horizontal", 6),
    Sketcher.Constraint("Parallel", 1, 5),
    Sketcher.Constraint("Parallel", 3, 7),
    Sketcher.Constraint("Horizontal", 3, 2, 4, 2),
    Sketcher.Constraint("Horizontal", 2, 2, 5, 2),
    Sketcher.Constraint("Equal", 0, 4),
    Sketcher.Constraint("Equal", 1, 3),
    Sketcher.Constraint("DistanceX", 2, 2, 2, 1, Q("1 mm")),
    Sketcher.Constraint("DistanceY", 1, 2, 0, 2, Q("4 mm")),
    Sketcher.Constraint("Angle", 1, Q("-110.0002 deg")),
    Sketcher.Constraint("DistanceY", 0, 2, -1, 1, Q("2 mm")),
    Sketcher.Constraint("DistanceX", 0, 2, -1, 1, Q("3.125 mm")),
    Sketcher.Constraint("DistanceX", 5, 2, -1, 1, Q("102.419 mm")),
])
sketch13.setExpression("Constraints[18]", "Params.sketch13_width")
pad12 = body.newObject("PartDesign::Pad", "Pad011")
pad12.Profile = sketch13
pad12.setExpression("Length", "Params.pad12_length")
doc.recompute()

chamfer = body.newObject("PartDesign::Chamfer", "Chamfer")
chamfer.Base = (pad12, edges_at(pad12, [
    (-106.35, 0.675, 2),
    (-104.875, -1, 2),
    (-1.65, 0.675, 2),
    (-3.125, -1, 2),
]))
chamfer.setExpression("Size", "Params.chamfer_size")

doc.recompute()
